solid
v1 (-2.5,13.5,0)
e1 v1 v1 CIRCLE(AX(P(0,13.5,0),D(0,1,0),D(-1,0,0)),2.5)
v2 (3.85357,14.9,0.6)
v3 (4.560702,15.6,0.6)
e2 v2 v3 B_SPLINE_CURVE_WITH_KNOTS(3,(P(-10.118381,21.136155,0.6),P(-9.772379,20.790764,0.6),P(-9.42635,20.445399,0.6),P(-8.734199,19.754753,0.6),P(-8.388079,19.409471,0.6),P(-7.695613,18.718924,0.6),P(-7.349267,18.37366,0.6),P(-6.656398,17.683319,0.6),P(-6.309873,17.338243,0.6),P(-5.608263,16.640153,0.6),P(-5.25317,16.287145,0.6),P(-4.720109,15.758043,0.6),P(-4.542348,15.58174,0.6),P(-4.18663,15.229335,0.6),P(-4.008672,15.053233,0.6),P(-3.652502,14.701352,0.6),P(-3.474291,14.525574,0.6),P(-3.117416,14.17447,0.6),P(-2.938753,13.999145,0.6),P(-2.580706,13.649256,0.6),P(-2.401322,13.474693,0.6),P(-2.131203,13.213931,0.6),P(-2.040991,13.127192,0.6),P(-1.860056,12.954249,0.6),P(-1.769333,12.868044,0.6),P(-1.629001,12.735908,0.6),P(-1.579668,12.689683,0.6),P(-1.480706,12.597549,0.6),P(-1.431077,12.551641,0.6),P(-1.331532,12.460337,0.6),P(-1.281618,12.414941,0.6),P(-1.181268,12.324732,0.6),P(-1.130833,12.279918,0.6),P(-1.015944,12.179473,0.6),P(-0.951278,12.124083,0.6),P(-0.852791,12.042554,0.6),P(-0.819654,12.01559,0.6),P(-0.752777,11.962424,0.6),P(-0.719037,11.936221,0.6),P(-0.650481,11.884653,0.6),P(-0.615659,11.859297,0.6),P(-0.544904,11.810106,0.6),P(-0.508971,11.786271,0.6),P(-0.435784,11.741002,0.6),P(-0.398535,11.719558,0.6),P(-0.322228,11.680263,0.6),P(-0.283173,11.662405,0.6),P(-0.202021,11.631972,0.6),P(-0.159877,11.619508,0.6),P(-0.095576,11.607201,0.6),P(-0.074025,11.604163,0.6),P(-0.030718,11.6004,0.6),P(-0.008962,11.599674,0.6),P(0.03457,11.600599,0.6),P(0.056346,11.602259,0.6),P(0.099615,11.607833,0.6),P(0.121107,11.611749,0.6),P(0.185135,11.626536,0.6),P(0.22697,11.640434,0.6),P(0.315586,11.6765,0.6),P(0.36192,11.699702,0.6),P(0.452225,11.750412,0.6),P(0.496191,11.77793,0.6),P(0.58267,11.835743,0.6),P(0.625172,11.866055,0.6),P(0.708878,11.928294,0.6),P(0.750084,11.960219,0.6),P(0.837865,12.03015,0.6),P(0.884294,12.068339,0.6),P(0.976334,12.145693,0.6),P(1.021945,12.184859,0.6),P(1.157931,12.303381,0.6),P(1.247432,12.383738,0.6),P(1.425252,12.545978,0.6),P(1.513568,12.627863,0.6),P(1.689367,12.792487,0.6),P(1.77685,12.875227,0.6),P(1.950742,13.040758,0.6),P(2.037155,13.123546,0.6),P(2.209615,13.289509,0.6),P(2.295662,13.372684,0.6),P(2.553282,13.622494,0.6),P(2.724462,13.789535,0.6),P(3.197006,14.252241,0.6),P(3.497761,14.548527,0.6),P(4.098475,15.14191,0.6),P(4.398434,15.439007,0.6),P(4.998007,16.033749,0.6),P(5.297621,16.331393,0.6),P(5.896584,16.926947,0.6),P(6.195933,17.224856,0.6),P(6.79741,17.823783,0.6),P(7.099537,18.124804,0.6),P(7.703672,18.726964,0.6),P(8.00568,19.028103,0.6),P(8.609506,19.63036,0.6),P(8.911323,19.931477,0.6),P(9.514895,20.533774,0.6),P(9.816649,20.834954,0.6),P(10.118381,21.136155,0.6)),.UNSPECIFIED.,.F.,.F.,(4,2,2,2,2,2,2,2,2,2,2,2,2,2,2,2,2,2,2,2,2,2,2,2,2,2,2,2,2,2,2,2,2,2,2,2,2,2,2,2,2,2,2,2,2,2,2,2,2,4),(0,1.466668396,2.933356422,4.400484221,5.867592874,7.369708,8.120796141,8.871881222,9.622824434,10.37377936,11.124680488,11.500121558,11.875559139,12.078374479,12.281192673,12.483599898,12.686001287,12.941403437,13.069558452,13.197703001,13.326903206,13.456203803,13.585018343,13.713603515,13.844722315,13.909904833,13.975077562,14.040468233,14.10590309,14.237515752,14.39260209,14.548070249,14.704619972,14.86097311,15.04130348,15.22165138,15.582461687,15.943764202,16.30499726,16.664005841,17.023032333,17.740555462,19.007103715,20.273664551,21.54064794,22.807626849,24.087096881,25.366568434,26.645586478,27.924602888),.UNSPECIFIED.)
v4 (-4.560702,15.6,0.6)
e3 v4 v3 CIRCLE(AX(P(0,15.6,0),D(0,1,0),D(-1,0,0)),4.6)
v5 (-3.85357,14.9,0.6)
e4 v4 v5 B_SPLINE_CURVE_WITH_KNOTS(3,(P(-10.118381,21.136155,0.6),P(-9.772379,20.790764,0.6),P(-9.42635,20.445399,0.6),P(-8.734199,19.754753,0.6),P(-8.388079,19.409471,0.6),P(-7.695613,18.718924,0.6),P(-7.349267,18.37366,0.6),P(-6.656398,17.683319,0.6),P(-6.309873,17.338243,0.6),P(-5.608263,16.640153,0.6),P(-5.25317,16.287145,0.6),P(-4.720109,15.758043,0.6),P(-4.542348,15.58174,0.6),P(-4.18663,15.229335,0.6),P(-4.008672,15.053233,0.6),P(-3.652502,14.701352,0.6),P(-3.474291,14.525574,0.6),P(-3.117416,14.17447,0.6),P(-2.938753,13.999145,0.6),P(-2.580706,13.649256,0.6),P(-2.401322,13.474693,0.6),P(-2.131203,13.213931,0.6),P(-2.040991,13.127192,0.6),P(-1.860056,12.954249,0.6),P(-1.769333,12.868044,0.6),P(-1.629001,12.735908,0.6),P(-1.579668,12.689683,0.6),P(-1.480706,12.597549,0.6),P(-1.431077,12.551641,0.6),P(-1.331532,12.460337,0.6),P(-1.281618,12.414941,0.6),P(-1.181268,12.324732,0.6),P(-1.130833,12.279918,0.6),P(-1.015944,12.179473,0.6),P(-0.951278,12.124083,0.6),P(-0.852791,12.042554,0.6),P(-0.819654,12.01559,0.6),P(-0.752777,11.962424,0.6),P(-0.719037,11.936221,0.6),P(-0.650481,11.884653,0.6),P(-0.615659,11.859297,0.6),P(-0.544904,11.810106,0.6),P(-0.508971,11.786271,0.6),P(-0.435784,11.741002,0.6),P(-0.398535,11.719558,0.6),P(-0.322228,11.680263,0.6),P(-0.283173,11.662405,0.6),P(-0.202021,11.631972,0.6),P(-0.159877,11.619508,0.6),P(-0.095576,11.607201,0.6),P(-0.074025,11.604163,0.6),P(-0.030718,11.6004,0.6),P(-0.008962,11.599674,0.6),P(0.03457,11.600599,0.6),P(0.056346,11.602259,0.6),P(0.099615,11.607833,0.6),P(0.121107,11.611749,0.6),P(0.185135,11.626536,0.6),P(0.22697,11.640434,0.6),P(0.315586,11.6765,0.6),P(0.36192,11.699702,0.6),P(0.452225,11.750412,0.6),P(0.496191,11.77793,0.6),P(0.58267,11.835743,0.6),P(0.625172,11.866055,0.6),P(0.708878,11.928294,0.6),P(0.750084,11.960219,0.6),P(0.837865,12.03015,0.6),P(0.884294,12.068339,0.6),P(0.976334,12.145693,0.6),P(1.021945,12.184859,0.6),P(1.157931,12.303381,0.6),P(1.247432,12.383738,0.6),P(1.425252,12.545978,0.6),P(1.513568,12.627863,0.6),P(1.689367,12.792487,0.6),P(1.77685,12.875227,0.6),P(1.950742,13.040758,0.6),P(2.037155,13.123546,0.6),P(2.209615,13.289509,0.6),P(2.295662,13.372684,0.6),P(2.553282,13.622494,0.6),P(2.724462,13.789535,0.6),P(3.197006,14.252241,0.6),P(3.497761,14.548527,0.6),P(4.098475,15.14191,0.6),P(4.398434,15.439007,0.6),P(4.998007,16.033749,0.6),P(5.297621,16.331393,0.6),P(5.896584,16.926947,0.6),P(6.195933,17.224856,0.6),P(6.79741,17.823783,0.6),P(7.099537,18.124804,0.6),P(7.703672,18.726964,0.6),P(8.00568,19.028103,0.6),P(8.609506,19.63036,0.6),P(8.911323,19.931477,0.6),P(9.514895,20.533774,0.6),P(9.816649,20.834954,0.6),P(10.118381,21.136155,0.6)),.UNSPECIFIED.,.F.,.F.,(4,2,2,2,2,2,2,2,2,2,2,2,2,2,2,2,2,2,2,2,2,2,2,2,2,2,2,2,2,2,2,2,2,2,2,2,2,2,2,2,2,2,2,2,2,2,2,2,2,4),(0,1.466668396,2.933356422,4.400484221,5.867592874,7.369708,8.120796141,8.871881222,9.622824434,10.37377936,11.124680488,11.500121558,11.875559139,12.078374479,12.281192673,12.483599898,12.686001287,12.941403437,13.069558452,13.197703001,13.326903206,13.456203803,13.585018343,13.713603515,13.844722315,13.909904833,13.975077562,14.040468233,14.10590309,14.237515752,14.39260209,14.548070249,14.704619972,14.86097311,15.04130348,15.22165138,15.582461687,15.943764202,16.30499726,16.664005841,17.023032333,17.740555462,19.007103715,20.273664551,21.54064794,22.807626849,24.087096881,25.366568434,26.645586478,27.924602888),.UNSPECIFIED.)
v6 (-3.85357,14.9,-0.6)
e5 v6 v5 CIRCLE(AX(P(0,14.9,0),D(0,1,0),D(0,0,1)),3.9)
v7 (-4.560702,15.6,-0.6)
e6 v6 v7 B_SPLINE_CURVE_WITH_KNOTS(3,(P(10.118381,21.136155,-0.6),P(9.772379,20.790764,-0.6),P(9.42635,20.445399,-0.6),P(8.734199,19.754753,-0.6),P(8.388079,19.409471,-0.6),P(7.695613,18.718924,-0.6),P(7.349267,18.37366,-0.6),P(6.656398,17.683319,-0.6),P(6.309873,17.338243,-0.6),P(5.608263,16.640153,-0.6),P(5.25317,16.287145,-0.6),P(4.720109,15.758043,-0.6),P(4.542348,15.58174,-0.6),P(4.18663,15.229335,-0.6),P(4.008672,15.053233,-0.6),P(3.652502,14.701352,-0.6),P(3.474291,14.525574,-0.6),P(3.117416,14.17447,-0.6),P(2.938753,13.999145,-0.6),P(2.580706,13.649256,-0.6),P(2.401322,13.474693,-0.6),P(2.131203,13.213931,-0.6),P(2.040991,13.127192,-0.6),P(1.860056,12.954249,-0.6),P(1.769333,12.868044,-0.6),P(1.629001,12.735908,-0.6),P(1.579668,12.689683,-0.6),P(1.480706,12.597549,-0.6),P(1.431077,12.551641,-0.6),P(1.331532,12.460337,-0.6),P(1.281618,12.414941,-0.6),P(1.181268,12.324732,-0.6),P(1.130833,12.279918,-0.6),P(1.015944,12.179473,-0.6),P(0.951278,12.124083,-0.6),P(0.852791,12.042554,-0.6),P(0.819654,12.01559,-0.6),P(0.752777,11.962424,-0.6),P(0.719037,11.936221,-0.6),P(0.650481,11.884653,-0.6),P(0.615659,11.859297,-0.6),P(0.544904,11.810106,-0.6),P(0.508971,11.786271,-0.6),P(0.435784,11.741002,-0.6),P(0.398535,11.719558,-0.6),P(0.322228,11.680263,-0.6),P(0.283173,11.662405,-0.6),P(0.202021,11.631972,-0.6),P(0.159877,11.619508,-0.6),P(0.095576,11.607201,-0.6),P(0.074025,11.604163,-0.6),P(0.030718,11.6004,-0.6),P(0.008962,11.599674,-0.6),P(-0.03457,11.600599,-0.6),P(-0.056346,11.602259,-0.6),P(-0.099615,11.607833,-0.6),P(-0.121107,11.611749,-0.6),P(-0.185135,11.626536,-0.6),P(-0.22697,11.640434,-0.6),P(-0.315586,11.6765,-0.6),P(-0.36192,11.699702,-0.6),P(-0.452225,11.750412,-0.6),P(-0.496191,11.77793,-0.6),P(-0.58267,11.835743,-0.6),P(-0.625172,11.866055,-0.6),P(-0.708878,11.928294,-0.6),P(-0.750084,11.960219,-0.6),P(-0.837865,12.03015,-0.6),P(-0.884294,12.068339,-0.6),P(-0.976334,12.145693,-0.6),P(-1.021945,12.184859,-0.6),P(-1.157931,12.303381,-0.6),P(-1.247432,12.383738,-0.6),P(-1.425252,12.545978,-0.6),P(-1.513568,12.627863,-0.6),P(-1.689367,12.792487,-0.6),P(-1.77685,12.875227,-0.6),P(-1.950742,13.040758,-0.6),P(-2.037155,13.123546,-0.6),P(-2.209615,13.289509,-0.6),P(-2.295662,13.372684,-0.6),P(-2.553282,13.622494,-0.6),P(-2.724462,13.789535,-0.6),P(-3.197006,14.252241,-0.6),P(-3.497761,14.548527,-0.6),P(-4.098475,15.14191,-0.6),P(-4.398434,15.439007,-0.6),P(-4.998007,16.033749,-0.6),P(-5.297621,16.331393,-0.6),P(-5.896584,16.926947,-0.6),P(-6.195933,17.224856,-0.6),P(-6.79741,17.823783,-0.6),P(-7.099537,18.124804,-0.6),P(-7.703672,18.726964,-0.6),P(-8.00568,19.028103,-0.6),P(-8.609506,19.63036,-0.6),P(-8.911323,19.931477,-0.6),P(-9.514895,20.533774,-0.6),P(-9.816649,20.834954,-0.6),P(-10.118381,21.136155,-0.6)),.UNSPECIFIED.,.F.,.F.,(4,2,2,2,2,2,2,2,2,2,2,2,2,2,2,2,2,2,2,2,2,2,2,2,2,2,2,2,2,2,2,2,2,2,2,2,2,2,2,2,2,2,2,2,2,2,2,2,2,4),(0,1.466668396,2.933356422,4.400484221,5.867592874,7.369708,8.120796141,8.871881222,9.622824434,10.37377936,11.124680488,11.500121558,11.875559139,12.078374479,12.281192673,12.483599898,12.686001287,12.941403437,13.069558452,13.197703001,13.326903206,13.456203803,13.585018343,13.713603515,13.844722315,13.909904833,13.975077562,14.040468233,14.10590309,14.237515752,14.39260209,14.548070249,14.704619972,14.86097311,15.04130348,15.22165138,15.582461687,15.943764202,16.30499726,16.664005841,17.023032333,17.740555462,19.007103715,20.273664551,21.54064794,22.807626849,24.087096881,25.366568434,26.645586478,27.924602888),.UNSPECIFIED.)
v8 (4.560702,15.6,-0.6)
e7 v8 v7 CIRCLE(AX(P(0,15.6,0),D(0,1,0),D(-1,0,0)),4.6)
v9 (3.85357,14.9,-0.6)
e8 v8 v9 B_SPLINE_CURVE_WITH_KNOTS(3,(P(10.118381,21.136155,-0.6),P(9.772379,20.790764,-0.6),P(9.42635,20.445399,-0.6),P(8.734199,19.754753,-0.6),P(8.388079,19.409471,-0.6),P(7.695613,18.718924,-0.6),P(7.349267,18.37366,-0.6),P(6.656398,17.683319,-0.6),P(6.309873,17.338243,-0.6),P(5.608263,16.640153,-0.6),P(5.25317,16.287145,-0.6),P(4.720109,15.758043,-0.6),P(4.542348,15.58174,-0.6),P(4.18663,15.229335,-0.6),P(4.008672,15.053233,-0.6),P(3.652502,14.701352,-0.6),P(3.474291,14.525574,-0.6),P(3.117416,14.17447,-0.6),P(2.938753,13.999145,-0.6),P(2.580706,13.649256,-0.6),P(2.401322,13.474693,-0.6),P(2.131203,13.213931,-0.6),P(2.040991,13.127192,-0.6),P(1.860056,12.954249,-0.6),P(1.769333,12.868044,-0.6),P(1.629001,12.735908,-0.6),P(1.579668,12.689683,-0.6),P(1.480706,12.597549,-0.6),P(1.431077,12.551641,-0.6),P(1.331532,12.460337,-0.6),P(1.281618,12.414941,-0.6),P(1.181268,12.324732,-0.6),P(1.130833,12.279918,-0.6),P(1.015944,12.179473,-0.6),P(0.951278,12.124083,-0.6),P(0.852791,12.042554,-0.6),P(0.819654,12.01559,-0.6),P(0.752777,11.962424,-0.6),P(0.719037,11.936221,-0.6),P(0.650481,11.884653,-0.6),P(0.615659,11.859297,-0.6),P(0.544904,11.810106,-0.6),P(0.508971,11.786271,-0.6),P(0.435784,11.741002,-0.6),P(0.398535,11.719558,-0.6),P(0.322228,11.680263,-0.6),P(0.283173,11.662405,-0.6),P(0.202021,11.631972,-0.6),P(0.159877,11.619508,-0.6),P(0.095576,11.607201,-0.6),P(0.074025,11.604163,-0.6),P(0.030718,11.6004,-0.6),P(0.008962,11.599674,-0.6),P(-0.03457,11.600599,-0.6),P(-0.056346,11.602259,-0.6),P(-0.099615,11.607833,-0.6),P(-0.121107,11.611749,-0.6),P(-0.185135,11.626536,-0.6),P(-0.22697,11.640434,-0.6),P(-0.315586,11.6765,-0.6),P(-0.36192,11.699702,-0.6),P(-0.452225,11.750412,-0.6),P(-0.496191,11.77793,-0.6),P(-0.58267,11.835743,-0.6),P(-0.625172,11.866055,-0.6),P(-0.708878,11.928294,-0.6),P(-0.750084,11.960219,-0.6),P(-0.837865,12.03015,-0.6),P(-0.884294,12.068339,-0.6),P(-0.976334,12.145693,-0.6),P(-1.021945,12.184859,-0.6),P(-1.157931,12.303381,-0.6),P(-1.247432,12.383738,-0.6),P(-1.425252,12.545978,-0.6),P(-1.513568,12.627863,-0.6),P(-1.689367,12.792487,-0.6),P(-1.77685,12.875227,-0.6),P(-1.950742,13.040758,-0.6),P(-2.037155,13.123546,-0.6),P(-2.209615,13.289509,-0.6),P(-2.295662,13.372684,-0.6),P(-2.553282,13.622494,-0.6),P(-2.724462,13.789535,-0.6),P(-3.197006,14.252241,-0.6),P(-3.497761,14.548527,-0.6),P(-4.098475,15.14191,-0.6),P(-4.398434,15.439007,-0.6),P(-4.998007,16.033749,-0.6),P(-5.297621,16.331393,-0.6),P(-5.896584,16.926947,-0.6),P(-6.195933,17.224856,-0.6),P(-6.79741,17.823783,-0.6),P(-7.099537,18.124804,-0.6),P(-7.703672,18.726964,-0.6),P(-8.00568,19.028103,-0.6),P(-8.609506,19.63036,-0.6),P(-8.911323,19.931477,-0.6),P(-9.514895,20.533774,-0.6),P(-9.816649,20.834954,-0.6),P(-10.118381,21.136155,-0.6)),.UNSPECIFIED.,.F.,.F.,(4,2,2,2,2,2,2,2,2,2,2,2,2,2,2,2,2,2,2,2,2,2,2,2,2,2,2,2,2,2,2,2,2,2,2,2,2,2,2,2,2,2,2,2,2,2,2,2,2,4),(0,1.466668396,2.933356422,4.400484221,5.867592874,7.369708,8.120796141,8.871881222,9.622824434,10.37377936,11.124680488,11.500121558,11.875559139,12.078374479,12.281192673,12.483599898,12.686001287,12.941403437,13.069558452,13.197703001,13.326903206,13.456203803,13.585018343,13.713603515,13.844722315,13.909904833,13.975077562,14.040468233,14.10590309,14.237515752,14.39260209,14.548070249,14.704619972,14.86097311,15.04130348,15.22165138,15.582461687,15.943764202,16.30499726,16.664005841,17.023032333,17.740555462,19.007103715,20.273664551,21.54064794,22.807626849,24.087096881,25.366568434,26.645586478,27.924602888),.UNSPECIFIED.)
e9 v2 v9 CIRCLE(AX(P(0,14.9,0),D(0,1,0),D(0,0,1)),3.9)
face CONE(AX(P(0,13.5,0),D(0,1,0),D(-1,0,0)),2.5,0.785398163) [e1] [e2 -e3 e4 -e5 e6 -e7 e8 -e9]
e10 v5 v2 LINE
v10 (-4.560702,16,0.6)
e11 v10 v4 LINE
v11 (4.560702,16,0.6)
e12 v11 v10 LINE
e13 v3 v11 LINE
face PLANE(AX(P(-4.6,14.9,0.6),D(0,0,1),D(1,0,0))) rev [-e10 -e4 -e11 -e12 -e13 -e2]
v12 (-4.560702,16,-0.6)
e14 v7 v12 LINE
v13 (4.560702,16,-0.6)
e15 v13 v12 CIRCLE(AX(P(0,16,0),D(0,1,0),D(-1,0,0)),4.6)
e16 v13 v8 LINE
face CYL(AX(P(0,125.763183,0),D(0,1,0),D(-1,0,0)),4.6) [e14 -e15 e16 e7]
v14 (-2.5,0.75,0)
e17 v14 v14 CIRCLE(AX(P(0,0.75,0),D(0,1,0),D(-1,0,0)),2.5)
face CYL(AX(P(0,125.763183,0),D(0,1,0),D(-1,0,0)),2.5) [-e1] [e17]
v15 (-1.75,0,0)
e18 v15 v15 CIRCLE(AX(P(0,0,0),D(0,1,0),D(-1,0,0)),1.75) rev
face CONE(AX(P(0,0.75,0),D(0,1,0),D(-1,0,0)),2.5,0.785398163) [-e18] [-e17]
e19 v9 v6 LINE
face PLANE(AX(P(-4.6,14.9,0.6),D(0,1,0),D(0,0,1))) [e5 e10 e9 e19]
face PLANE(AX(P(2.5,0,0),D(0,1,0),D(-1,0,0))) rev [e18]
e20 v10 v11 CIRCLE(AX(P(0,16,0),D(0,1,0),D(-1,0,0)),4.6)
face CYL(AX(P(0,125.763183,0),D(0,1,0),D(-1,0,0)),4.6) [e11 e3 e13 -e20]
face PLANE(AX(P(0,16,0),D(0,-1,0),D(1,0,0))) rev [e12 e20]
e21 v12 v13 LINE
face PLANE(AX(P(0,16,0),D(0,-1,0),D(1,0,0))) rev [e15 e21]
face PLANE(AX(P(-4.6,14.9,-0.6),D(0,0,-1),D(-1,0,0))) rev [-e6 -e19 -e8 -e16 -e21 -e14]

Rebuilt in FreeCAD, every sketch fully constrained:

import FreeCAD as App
import Part
import Sketcher
Q = App.Units.Quantity


def edges_at(feature, points):
    """Names of the edges that pass closest to the given points."""
    edges = feature.Shape.Edges
    near = lambda p: min(range(len(edges)), key=lambda i: edges[i].distToShape(Part.Vertex(*p))[0])
    return sorted({f"Edge{near(p) + 1}" for p in points})


def add_polygon(sketch, points):
    """Adds a closed chain of lines whose ends are joined by coincident constraints."""
    first, n = sketch.GeometryCount, len(points)
    for a, b in zip(points, points[1:] + points[:1]):
        sketch.addGeometry(Part.LineSegment(App.Vector(*a, 0), App.Vector(*b, 0)), False)
    for i in range(n):
        sketch.addConstraint(Sketcher.Constraint("Coincident", first + i, 2, first + (i + 1) % n, 1))

doc = App.newDocument("Part")
body = doc.addObject("PartDesign::Body", "Body")

# Sketch on XY plane
sketch1 = body.newObject("Sketcher::SketchObject", "Sketch")
sketch1.AttachmentSupport = (doc.getObject("XY_Plane"), [""])
sketch1.MapMode = "FlatFace"
add_polygon(sketch1, [(0, 16), (0, 0), (2.5, 0), (2.5, 13.5), (4.6, 15.6), (4.6, 16)])  # lines 0-5
sketch1.addConstraint([
    Sketcher.Constraint("Vertical", 0),
    Sketcher.Constraint("Horizontal", 1),
    Sketcher.Constraint("Vertical", 2),
    Sketcher.Constraint("Vertical", 4),
    Sketcher.Constraint("Horizontal", 5),
    Sketcher.Constraint("Coincident", 0, 2, -1, 1),
    Sketcher.Constraint("DistanceY", 0, 2, 0, 1, 16.0),
    Sketcher.Constraint("Angle", 3, Q("45 deg")),
    Sketcher.Constraint("DistanceX", 1, 1, 1, 2, 2.5),
    Sketcher.Constraint("DistanceX", 5, 2, 5, 1, 4.6),
    Sketcher.Constraint("DistanceY", 2, 1, 2, 2, 13.5),
])
revolution = body.newObject("PartDesign::Revolution", "Revolution")
revolution.Profile = sketch1
revolution.ReferenceAxis = (sketch1, ["V_Axis"])
revolution.Angle = 360

# Sketch on XZ plane
sketch2 = body.newObject("Sketcher::SketchObject", "Sketch001")
sketch2.AttachmentSupport = (doc.getObject("XZ_Plane"), [""])
sketch2.MapMode = "FlatFace"
sketch2.AttachmentOffset = App.Placement(App.Vector(0, 0, -16), App.Rotation())
add_polygon(sketch2, [(4.6, 0.6), (4.6, -0.6), (-4.6, -0.6), (-4.6, 0.6)])  # lines 0-3
sketch2.addConstraint([
    Sketcher.Constraint("Vertical", 0),
    Sketcher.Constraint("Horizontal", 1),
    Sketcher.Constraint("Vertical", 2),
    Sketcher.Constraint("Horizontal", 3),
    Sketcher.Constraint("Symmetric", 0, 2, 2, 2, -1, 1),
    Sketcher.Constraint("DistanceX", 1, 2, 1, 1, 9.2),
    Sketcher.Constraint("DistanceY", 0, 2, 0, 1, 1.2),
])
pocket1 = body.newObject("PartDesign::Pocket", "Pocket")
pocket1.Profile = sketch2
pocket1.Length = 1.1
pocket1.Reversed = True
doc.recompute()

chamfer = body.newObject("PartDesign::Chamfer", "Chamfer")
chamfer.Base = (pocket1, edges_at(pocket1, [(2.5, 0, 0)]))
chamfer.Size = 0.75

doc.recompute()
